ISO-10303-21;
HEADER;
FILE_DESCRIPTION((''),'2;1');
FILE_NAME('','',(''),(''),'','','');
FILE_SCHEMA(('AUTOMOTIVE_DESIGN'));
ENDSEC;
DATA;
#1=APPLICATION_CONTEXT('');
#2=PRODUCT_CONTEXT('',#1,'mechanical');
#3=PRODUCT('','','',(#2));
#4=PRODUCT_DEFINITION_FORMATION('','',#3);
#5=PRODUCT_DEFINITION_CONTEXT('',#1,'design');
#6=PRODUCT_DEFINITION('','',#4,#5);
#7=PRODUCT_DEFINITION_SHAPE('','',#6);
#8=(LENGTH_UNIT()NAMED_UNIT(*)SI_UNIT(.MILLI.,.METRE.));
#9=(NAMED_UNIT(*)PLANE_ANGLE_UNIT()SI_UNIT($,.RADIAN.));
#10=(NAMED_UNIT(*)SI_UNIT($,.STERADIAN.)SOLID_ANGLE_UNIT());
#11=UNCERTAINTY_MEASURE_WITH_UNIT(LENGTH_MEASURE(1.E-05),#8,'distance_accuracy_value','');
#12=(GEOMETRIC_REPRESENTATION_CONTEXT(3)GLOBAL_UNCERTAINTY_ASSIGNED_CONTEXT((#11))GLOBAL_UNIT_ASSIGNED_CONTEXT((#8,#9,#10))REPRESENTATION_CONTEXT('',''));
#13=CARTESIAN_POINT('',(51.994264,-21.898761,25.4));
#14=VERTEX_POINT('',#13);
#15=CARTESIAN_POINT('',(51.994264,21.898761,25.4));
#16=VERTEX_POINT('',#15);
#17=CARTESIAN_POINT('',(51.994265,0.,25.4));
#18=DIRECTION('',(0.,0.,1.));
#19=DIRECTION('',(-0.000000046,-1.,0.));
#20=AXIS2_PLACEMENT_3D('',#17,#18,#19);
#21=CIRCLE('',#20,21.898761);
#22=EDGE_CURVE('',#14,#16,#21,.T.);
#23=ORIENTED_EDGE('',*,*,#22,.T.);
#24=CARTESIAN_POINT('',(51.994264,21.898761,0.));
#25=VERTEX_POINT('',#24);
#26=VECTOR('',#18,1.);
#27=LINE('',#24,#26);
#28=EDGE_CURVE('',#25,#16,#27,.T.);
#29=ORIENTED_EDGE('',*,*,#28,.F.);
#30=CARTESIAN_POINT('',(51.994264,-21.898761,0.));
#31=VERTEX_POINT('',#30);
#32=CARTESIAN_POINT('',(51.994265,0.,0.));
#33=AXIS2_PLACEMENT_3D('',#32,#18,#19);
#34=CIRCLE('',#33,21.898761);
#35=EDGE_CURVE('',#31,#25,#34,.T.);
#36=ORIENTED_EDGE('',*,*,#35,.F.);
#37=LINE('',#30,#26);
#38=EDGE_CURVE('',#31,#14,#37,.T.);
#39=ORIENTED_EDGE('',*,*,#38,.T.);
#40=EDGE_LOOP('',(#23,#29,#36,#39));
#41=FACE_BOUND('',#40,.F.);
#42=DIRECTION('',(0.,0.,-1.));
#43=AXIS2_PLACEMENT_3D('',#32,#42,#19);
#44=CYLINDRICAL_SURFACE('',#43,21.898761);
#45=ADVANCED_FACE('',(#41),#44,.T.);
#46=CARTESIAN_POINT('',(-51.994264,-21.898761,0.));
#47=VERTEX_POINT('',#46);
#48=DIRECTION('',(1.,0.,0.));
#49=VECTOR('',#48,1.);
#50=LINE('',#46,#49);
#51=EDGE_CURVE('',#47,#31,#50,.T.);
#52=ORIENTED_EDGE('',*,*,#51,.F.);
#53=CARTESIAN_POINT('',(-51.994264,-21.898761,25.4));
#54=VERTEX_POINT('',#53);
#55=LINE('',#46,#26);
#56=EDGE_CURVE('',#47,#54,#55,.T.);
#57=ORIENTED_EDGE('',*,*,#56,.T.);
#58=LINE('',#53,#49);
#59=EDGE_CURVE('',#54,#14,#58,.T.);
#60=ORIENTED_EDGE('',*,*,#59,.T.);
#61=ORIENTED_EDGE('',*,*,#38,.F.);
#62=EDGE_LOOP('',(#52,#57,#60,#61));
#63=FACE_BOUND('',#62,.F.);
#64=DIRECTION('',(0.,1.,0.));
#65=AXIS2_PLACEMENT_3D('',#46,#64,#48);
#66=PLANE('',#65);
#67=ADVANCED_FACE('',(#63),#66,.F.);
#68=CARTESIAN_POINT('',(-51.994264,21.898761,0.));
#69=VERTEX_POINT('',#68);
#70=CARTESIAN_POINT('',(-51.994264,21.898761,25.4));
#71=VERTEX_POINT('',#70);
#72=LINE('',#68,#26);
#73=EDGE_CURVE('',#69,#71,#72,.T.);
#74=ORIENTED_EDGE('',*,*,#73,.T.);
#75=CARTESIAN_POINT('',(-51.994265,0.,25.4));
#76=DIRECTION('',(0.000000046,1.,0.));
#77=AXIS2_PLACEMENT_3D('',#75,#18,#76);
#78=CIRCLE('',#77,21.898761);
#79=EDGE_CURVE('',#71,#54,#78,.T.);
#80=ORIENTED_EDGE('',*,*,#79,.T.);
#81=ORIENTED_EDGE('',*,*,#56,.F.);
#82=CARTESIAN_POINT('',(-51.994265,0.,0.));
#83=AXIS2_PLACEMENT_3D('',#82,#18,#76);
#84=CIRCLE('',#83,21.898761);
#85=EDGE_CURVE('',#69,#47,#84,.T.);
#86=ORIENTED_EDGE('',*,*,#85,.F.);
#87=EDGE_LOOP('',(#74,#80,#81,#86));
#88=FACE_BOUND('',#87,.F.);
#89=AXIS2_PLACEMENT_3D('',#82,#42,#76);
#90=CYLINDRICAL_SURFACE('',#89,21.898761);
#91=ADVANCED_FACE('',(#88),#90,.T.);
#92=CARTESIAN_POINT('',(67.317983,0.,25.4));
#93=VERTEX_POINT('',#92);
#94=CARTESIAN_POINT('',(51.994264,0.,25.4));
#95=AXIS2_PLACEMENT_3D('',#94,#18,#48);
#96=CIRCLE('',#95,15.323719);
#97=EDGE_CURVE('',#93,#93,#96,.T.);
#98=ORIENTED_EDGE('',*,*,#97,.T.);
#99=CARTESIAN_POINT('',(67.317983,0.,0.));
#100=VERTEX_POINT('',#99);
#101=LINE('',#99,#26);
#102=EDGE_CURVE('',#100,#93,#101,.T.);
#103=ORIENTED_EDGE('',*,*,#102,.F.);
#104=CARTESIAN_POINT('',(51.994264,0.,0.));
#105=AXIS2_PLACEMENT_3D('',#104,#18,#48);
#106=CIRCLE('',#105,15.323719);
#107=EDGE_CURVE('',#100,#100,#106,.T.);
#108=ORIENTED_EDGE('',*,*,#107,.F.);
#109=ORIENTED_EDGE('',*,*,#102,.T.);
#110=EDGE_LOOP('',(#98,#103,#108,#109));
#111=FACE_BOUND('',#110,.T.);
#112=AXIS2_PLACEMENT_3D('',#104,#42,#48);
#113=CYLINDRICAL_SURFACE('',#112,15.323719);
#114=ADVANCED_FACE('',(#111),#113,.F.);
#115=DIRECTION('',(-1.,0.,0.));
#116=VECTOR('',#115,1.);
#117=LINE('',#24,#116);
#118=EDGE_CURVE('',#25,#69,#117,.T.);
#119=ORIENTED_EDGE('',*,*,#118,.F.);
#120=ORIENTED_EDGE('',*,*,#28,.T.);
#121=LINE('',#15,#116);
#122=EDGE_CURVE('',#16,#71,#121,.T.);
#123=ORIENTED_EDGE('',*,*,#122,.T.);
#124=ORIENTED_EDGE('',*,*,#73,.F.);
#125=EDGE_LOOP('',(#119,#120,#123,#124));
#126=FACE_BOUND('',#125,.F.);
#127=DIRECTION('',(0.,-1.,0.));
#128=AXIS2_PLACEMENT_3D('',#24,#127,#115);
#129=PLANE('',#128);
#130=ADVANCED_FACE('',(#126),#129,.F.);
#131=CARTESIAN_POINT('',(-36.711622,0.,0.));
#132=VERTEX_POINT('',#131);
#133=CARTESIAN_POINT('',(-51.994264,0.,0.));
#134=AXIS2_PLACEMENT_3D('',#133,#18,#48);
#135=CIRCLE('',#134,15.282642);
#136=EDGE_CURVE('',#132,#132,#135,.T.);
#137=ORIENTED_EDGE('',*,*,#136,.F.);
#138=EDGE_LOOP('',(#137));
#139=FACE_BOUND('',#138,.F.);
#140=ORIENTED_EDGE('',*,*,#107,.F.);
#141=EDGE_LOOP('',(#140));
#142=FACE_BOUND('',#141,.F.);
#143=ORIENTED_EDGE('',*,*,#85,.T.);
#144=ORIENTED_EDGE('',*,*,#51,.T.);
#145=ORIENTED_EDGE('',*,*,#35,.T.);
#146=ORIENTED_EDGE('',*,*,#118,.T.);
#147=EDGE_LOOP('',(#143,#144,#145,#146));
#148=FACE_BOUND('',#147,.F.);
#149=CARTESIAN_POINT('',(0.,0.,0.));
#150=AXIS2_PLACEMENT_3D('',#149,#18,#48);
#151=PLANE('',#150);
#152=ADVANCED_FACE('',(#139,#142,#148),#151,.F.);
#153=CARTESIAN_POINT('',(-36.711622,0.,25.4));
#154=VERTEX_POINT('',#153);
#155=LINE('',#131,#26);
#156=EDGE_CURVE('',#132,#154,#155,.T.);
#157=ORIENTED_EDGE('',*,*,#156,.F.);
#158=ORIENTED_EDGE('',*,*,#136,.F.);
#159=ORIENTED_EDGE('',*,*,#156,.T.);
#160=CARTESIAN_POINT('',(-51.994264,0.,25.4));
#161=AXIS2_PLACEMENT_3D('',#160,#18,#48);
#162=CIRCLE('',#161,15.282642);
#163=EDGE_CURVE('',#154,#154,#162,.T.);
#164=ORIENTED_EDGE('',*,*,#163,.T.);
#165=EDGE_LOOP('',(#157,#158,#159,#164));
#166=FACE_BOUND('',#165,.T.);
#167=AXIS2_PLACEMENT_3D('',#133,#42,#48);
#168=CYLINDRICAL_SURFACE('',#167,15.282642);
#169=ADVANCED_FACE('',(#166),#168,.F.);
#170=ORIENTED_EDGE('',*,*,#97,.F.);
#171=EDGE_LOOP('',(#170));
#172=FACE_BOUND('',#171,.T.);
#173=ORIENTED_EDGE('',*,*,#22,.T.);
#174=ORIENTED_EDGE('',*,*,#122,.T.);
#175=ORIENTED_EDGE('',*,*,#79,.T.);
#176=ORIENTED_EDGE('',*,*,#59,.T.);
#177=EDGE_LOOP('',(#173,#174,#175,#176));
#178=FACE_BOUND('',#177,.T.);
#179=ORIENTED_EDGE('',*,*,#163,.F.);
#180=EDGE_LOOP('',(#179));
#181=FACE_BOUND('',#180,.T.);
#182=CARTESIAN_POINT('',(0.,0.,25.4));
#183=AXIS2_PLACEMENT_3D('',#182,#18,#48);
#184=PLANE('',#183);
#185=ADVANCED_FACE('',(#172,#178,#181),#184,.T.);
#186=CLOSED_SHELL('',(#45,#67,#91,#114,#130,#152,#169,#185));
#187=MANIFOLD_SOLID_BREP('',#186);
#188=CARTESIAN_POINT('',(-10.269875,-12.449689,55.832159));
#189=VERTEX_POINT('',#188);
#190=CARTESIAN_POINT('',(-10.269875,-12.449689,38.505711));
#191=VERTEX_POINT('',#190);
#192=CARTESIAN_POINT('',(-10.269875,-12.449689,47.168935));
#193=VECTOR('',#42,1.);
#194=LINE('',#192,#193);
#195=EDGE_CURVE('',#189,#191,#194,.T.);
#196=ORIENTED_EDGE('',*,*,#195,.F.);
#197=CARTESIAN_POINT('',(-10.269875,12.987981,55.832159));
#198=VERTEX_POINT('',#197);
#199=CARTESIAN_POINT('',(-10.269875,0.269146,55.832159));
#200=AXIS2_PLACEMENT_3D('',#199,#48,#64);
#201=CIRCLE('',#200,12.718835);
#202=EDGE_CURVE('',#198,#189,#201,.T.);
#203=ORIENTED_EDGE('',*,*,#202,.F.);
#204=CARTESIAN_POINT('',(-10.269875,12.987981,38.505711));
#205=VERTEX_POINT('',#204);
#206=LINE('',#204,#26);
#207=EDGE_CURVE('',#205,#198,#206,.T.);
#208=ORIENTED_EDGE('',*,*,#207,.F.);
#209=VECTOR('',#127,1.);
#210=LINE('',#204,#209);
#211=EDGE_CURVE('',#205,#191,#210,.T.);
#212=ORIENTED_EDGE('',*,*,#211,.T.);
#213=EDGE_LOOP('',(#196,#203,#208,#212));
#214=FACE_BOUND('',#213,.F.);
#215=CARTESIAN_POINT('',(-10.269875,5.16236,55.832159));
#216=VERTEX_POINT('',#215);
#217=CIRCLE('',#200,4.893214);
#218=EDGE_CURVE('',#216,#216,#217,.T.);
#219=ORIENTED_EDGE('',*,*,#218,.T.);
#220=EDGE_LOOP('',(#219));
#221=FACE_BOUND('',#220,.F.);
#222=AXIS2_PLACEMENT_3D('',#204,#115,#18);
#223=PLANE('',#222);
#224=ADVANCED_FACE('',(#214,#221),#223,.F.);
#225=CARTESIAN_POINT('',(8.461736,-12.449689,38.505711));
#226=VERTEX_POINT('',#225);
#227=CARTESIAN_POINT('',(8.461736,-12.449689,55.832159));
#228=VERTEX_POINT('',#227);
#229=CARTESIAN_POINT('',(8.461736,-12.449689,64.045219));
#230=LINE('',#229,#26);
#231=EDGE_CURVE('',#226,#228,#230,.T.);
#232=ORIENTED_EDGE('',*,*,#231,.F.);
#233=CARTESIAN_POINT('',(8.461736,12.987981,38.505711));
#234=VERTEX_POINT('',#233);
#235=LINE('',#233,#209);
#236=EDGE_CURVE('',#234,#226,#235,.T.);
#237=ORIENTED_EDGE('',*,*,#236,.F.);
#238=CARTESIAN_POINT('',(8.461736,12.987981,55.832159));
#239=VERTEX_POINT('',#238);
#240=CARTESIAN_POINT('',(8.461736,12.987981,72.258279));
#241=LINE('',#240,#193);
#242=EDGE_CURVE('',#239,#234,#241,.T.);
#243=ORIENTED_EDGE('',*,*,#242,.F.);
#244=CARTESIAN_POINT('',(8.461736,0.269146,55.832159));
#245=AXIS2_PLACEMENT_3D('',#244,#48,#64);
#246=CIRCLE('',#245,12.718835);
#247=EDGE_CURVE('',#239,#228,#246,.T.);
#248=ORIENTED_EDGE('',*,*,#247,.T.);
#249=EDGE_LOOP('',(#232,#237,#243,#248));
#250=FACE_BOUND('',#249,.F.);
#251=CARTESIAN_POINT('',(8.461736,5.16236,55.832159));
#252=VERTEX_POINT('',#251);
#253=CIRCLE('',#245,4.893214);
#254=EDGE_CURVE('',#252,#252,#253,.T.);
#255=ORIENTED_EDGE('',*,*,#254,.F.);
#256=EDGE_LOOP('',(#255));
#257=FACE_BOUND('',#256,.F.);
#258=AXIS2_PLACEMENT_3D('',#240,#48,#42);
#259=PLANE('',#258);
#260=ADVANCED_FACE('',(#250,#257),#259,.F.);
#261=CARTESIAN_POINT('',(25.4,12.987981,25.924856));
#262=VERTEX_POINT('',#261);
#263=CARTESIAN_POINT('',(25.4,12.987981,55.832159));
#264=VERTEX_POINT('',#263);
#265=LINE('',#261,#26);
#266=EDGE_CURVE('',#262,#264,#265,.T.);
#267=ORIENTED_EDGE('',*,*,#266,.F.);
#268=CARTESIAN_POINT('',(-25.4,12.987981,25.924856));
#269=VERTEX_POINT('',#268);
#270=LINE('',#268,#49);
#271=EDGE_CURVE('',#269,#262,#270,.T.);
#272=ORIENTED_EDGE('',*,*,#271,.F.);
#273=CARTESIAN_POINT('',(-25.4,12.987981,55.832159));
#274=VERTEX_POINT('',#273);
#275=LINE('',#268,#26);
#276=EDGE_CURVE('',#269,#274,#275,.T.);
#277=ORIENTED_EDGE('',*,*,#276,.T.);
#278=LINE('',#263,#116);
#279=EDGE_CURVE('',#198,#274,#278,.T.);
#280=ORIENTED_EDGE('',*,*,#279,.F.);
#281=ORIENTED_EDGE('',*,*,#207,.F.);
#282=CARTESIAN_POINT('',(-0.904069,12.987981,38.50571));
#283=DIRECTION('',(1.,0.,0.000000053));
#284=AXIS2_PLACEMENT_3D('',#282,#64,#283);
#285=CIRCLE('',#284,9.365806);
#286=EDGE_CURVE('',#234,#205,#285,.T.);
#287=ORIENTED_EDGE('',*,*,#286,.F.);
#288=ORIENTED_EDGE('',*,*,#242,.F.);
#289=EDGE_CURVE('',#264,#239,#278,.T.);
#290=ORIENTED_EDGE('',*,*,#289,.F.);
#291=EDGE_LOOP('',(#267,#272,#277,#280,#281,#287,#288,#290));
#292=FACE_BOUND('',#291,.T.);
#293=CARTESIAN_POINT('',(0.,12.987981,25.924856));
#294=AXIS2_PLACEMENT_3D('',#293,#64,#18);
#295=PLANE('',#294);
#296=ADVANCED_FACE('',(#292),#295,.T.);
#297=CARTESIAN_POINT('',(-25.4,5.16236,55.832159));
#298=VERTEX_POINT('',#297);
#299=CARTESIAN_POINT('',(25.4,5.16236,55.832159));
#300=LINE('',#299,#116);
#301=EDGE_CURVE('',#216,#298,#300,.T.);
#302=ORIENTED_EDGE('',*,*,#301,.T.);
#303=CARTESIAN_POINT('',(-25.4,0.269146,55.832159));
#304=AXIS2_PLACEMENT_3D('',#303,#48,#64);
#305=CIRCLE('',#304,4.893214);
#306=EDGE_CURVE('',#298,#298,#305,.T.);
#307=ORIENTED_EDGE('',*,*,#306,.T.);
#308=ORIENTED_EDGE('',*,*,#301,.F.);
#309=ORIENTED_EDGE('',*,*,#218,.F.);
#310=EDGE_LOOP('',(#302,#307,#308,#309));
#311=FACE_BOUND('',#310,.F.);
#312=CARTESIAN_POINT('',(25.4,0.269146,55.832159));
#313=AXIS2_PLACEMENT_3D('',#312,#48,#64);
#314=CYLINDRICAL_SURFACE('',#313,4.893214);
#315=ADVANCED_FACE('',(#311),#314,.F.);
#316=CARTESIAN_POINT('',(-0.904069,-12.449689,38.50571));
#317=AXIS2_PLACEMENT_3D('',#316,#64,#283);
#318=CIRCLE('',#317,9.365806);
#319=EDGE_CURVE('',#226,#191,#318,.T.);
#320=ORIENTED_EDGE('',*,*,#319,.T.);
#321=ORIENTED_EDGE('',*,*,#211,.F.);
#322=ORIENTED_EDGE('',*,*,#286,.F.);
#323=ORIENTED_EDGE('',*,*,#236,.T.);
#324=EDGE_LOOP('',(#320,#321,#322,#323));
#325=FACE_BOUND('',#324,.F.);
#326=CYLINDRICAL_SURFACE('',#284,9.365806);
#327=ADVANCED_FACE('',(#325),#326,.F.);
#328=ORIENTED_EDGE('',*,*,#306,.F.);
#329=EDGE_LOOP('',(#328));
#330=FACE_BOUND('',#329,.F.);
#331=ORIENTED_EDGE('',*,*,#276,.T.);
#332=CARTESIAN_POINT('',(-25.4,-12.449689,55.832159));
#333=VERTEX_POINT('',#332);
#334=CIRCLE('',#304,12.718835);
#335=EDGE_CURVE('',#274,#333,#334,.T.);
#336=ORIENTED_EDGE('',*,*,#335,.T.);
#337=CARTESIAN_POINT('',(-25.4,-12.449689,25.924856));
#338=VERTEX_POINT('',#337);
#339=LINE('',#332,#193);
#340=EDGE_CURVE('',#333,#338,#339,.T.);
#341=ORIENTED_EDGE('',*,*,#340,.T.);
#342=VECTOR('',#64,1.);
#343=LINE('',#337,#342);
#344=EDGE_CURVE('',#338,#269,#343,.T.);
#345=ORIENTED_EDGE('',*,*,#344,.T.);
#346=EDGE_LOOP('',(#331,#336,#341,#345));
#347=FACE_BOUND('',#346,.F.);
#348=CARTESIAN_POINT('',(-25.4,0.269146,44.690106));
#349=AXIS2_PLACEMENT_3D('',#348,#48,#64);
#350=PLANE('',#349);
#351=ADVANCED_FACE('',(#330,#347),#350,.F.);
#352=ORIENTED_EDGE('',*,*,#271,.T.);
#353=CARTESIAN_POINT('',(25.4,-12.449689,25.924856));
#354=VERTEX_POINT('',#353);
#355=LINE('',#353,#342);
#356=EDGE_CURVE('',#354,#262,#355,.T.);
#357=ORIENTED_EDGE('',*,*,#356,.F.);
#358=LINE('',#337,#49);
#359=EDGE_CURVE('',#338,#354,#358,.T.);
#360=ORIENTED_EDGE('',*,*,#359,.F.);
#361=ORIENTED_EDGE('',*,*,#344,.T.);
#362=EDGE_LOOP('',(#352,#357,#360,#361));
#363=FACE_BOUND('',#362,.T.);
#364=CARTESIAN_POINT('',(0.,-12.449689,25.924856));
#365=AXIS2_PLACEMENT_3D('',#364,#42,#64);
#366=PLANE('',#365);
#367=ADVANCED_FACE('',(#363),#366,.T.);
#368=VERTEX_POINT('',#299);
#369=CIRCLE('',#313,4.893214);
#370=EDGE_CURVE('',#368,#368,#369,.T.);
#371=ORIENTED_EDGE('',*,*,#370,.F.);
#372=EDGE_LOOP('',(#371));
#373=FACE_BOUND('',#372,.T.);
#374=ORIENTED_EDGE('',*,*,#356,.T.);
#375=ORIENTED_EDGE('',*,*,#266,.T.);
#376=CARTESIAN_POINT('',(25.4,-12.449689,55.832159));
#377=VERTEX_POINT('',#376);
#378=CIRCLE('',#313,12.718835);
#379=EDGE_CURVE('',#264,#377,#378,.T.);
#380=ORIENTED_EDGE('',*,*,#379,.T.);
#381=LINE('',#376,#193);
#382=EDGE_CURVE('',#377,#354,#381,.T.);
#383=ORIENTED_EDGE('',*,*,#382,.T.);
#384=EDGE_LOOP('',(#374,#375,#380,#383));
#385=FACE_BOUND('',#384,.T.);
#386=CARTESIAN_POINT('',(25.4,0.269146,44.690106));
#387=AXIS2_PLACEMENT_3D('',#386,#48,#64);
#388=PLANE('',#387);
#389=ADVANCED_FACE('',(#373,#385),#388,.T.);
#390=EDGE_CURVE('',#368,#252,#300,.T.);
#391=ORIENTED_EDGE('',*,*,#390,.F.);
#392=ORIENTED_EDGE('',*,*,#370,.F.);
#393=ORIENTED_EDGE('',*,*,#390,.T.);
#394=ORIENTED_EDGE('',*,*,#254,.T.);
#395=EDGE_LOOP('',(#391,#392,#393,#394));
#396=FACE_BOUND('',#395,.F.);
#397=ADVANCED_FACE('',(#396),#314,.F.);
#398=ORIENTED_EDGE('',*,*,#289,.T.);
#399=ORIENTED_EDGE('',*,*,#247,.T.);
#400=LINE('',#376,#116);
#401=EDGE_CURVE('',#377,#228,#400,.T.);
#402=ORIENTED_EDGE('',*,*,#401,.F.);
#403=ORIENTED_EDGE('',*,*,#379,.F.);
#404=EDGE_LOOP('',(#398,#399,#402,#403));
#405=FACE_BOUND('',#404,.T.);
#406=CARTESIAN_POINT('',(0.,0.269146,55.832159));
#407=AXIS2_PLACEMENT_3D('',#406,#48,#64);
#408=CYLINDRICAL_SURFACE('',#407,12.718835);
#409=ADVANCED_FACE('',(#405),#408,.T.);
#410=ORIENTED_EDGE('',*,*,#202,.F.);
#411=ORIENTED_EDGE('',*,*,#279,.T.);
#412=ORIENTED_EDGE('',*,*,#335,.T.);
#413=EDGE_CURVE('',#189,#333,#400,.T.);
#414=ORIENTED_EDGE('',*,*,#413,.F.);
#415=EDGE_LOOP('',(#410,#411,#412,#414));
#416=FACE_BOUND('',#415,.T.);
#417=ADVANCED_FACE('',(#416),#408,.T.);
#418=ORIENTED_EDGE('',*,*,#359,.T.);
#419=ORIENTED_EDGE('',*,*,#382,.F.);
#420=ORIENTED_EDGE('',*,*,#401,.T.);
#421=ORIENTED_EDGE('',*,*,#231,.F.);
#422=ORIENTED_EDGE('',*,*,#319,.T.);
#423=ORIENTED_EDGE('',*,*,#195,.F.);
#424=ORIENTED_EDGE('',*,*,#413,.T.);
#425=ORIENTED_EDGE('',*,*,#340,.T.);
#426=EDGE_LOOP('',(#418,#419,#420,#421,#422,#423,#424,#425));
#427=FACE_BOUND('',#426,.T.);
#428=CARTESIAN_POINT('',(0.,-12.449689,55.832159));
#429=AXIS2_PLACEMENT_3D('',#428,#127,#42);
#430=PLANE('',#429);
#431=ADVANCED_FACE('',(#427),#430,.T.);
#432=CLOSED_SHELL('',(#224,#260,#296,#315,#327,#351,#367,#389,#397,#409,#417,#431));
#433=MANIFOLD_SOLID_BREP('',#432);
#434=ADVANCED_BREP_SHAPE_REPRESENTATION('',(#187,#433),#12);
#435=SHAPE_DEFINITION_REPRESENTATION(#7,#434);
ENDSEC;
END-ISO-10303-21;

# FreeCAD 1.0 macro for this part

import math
import FreeCAD as App
import Part
import Sketcher
Q = App.Units.Quantity

doc = App.newDocument("Part")
body = doc.addObject("PartDesign::Body", "Body")

# Sketch on XY plane
sketch1 = doc.addObject("Sketcher::SketchObject", "Sketch")
body.addObject(sketch1)
sketch1.AttachmentSupport = (doc.XY_Plane, [""])
sketch1.MapMode = "FlatFace"
sketch1.addGeometry(Part.ArcOfCircle(Part.Circle(App.Vector(51.994265, 0, 0), App.Vector(0, 0, 1), 21.898761), math.radians(-90.000003), math.radians(90.000003)), False)
sketch1.addGeometry(Part.LineSegment(App.Vector(51.994264, 21.898761, 0), App.Vector(-51.994264, 21.898761, 0)), False)
sketch1.addGeometry(Part.ArcOfCircle(Part.Circle(App.Vector(-51.994265, 0, 0), App.Vector(0, 0, 1), 21.898761), math.radians(89.999997), math.radians(270.000003)), False)
sketch1.addGeometry(Part.LineSegment(App.Vector(-51.994264, -21.898761, 0), App.Vector(51.994264, -21.898761, 0)), False)
sketch1.addGeometry(Part.Circle(App.Vector(-51.994264, 0, 0), App.Vector(0, 0, 1), 15.282642), False)
sketch1.addGeometry(Part.Circle(App.Vector(51.994264, 0, 0), App.Vector(0, 0, 1), 15.323719), False)
sketch1.addConstraint(Sketcher.Constraint("Tangent", 0, 2, 1, 1))
sketch1.addConstraint(Sketcher.Constraint("Tangent", 1, 2, 2, 1))
sketch1.addConstraint(Sketcher.Constraint("Tangent", 2, 2, 3, 1))
sketch1.addConstraint(Sketcher.Constraint("Tangent", 3, 2, 0, 1))
sketch1.addConstraint(Sketcher.Constraint("Horizontal", 1))
sketch1.addConstraint(Sketcher.Constraint("Horizontal", 3))
sketch1.addConstraint(Sketcher.Constraint("Coincident", 4, 3, 2, 3))
sketch1.addConstraint(Sketcher.Constraint("Coincident", 5, 3, 0, 3))
sketch1.addConstraint(Sketcher.Constraint("Symmetric", 0, 3, 2, 3, -1, 1))
sketch1.addConstraint(Sketcher.Constraint("Diameter", 5, 30.647438))
sketch1.addConstraint(Sketcher.Constraint("Radius", 0, 21.898761))
sketch1.addConstraint(Sketcher.Constraint("Diameter", 4, 30.565284))
sketch1.addConstraint(Sketcher.Constraint("DistanceX", 1, 2, 1, 1, 103.988528))
pad1 = doc.addObject("PartDesign::Pad", "Pad")
body.addObject(pad1)
pad1.Profile = sketch1
pad1.Length = Q("1 in")
body2 = doc.addObject("PartDesign::Body", "Body001")

# Sketch on YZ plane
sketch2 = doc.addObject("Sketcher::SketchObject", "Sketch001")
body2.addObject(sketch2)
sketch2.AttachmentSupport = (doc.getObject("YZ_Plane001"), [""])
sketch2.MapMode = "FlatFace"
sketch2.addGeometry(Part.LineSegment(App.Vector(-12.449689, 55.832159, 0), App.Vector(-12.449689, 25.924856, 0)), False)
sketch2.addGeometry(Part.LineSegment(App.Vector(-12.449689, 25.924856, 0), App.Vector(12.987981, 25.924856, 0)), False)
sketch2.addGeometry(Part.LineSegment(App.Vector(12.987981, 25.924856, 0), App.Vector(12.987981, 55.832159, 0)), False)
sketch2.addGeometry(Part.ArcOfCircle(Part.Circle(App.Vector(0.269146, 55.832159, 0), App.Vector(0, 0, 1), 12.718835), math.radians(0), math.radians(180)), False)
sketch2.addConstraint(Sketcher.Constraint("Coincident", 0, 2, 1, 1))
sketch2.addConstraint(Sketcher.Constraint("Coincident", 1, 2, 2, 1))
sketch2.addConstraint(Sketcher.Constraint("Tangent", 2, 2, 3, 1))
sketch2.addConstraint(Sketcher.Constraint("Tangent", 3, 2, 0, 1))
sketch2.addConstraint(Sketcher.Constraint("Vertical", 0))
sketch2.addConstraint(Sketcher.Constraint("Horizontal", 1))
sketch2.addConstraint(Sketcher.Constraint("Vertical", 2))
sketch2.addConstraint(Sketcher.Constraint("Radius", 3, 12.718835))
sketch2.addConstraint(Sketcher.Constraint("DistanceY", 0, 2, 0, 1, 29.907303))
sketch2.addConstraint(Sketcher.Constraint("DistanceY", -1, 1, 3, 3, 55.832159))
sketch2.addConstraint(Sketcher.Constraint("DistanceX", 0, 2, -1, 1, 12.449689))
pad2 = doc.addObject("PartDesign::Pad", "Pad001")
body2.addObject(pad2)
pad2.Profile = sketch2
pad2.Length = Q("2 in")
pad2.Midplane = True

# Sketch on YZ plane
sketch3 = doc.addObject("Sketcher::SketchObject", "Sketch002")
body2.addObject(sketch3)
sketch3.AttachmentSupport = (doc.getObject("YZ_Plane001"), [""])
sketch3.MapMode = "FlatFace"
sketch3.AttachmentOffset = App.Placement(App.Vector(0, 0, 1 * 25.4), App.Rotation())
sketch3.addGeometry(Part.Circle(App.Vector(0.269146, 55.832159, 0), App.Vector(0, 0, 1), 4.893214), False)
sketch3.addConstraint(Sketcher.Constraint("Diameter", 0, 9.786428))
sketch3.addConstraint(Sketcher.Constraint("DistanceY", -1, 1, 0, 3, 55.832159))
sketch3.addConstraint(Sketcher.Constraint("DistanceX", -1, 1, 0, 3, 0.269146))
pocket1 = doc.addObject("PartDesign::Pocket", "Pocket")
body2.addObject(pocket1)
pocket1.Profile = sketch3
pocket1.Length = Q("2 in")

# Sketch on XZ plane
sketch4 = doc.addObject("Sketcher::SketchObject", "Sketch003")
body2.addObject(sketch4)
sketch4.AttachmentSupport = (doc.getObject("XZ_Plane001"), [""])
sketch4.MapMode = "FlatFace"
sketch4.AttachmentOffset = App.Placement(App.Vector(0, 0, -12.987981), App.Rotation())
sketch4.addGeometry(Part.LineSegment(App.Vector(-10.269875, 72.258279, 0), App.Vector(8.461736, 72.258279, 0)), False)
sketch4.addGeometry(Part.LineSegment(App.Vector(8.461736, 72.258279, 0), App.Vector(8.461736, 38.505711, 0)), False)
sketch4.addGeometry(Part.ArcOfCircle(Part.Circle(App.Vector(-0.904069, 38.50571, 0), App.Vector(0, 0, 1), 9.365806), math.radians(179.999997), math.radians(360.000003)), False)
sketch4.addGeometry(Part.LineSegment(App.Vector(-10.269875, 38.505711, 0), App.Vector(-10.269875, 72.258279, 0)), False)
sketch4.addConstraint(Sketcher.Constraint("Coincident", 0, 2, 1, 1))
sketch4.addConstraint(Sketcher.Constraint("Tangent", 1, 2, 2, 2))
sketch4.addConstraint(Sketcher.Constraint("Tangent", 2, 1, 3, 1))
sketch4.addConstraint(Sketcher.Constraint("Coincident", 3, 2, 0, 1))
sketch4.addConstraint(Sketcher.Constraint("Horizontal", 0))
sketch4.addConstraint(Sketcher.Constraint("Vertical", 1))
sketch4.addConstraint(Sketcher.Constraint("Vertical", 3))
sketch4.addConstraint(Sketcher.Constraint("Radius", 2, 9.365806))
sketch4.addConstraint(Sketcher.Constraint("DistanceY", 1, 2, 1, 1, 33.752568))
sketch4.addConstraint(Sketcher.Constraint("DistanceX", 2, 3, -1, 1, 0.904069))
sketch4.addConstraint(Sketcher.Constraint("DistanceY", -1, 1, 2, 3, 38.50571))
pocket2 = doc.addObject("PartDesign::Pocket", "Pocket001")
body2.addObject(pocket2)
pocket2.Profile = sketch4
pocket2.Length = Q("2 in")
pocket2.Reversed = True

doc.recompute()
